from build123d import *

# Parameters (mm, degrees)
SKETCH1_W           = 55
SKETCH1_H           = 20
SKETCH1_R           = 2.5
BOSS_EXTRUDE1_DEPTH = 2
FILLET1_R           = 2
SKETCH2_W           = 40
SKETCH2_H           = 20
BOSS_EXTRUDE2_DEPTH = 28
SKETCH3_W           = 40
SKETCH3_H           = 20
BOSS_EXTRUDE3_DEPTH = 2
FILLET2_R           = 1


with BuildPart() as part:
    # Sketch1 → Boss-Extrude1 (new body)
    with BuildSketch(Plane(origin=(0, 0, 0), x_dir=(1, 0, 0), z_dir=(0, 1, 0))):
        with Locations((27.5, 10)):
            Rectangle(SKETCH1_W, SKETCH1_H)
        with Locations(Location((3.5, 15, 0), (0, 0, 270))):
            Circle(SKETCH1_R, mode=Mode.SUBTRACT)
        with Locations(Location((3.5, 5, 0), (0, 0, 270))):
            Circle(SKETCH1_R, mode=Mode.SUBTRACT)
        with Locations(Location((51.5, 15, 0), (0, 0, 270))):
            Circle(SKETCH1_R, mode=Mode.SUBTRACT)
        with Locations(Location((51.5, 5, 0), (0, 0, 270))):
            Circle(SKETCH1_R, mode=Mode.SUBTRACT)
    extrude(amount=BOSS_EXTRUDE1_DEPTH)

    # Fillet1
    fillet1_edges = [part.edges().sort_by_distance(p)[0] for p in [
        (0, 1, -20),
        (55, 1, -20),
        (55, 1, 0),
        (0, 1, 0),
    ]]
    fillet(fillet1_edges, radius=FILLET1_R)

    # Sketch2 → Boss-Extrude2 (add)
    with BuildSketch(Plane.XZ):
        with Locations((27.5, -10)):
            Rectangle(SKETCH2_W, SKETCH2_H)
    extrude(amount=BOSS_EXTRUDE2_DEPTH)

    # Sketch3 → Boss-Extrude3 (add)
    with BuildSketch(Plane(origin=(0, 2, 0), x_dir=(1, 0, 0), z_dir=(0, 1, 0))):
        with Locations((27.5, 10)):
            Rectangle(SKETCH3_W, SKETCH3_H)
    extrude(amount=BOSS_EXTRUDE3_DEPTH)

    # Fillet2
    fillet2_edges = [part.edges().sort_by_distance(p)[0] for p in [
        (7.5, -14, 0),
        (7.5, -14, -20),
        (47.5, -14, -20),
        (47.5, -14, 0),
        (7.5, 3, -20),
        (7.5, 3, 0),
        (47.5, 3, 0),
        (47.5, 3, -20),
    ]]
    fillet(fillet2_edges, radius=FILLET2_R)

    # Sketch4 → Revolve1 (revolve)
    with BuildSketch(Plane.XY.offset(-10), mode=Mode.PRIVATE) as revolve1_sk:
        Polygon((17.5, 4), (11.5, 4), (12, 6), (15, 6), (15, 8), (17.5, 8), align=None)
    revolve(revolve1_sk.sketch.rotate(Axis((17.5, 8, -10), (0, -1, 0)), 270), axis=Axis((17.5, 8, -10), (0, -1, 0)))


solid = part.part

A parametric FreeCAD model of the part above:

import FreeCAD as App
import Part
import Sketcher
Q = App.Units.Quantity


def edges_at(feature, points):
    """Names of the edges that pass closest to the given points."""
    edges = feature.Shape.Edges
    near = lambda p: min(range(len(edges)), key=lambda i: edges[i].distToShape(Part.Vertex(*p))[0])
    return sorted({f"Edge{near(p) + 1}" for p in points})

doc = App.newDocument("Part")
body = doc.addObject("PartDesign::Body", "Body")

sketch1 = body.newObject("Sketcher::SketchObject", "Sketch")
sketch1.AttachmentSupport = (doc.getObject("XZ_Plane"), [""])
sketch1.MapMode = "FlatFace"
sketch1.addGeometry(Part.LineSegment(App.Vector(0, -20, 0), App.Vector(0, 0, 0)), False)
sketch1.addGeometry(Part.LineSegment(App.Vector(0, 0, 0), App.Vector(55, 0, 0)), False)
sketch1.addGeometry(Part.LineSegment(App.Vector(55, 0, 0), App.Vector(55, -20, 0)), False)
sketch1.addGeometry(Part.LineSegment(App.Vector(55, -20, 0), App.Vector(0, -20, 0)), False)
sketch1.addGeometry(Part.Circle(App.Vector(3.5, -5, 0), App.Vector(0, 0, 1), 2.5), False)
sketch1.addGeometry(Part.Circle(App.Vector(51.5, -5, 0), App.Vector(0, 0, 1), 2.5), False)
sketch1.addGeometry(Part.Circle(App.Vector(3.5, -15, 0), App.Vector(0, 0, 1), 2.5), False)
sketch1.addGeometry(Part.Circle(App.Vector(51.5, -15, 0), App.Vector(0, 0, 1), 2.5), False)
sketch1.addConstraint(Sketcher.Constraint("Coincident", 0, 2, 1, 1))
sketch1.addConstraint(Sketcher.Constraint("Coincident", 1, 2, 2, 1))
sketch1.addConstraint(Sketcher.Constraint("Coincident", 2, 2, 3, 1))
sketch1.addConstraint(Sketcher.Constraint("Coincident", 3, 2, 0, 1))
sketch1.addConstraint(Sketcher.Constraint("Vertical", 0))
sketch1.addConstraint(Sketcher.Constraint("Horizontal", 1))
sketch1.addConstraint(Sketcher.Constraint("Vertical", 2))
sketch1.addConstraint(Sketcher.Constraint("Horizontal", 3))
sketch1.addConstraint(Sketcher.Constraint("Coincident", 0, 2, -1, 1))
sketch1.addConstraint(Sketcher.Constraint("Equal", 4, 5))
sketch1.addConstraint(Sketcher.Constraint("Equal", 5, 6))
sketch1.addConstraint(Sketcher.Constraint("Equal", 6, 7))
sketch1.addConstraint(Sketcher.Constraint("Horizontal", 4, 3, 5, 3))
sketch1.addConstraint(Sketcher.Constraint("Horizontal", 6, 3, 7, 3))
sketch1.addConstraint(Sketcher.Constraint("Vertical", 4, 3, 6, 3))
sketch1.addConstraint(Sketcher.Constraint("Vertical", 5, 3, 7, 3))
sketch1.addConstraint(Sketcher.Constraint("Diameter", 4, Q("5 mm")))
sketch1.addConstraint(Sketcher.Constraint("DistanceX", 1, 1, 1, 2, Q("55 mm")))
sketch1.addConstraint(Sketcher.Constraint("DistanceY", 0, 1, 0, 2, Q("20 mm")))
sketch1.addConstraint(Sketcher.Constraint("DistanceY", 4, 3, -1, 1, Q("5 mm")))
sketch1.addConstraint(Sketcher.Constraint("DistanceY", 6, 3, -1, 1, Q("15 mm")))
sketch1.addConstraint(Sketcher.Constraint("DistanceX", 4, 3, 5, 3, Q("48 mm")))
sketch1.addConstraint(Sketcher.Constraint("DistanceX", -1, 1, 4, 3, Q("3.5 mm")))
pad1 = body.newObject("PartDesign::Pad", "Pad")
pad1.Profile = sketch1
pad1.Length = 2
pad1.Reversed = True
doc.recompute()

fillet = body.newObject("PartDesign::Fillet", "Fillet")
fillet.Base = (pad1, edges_at(pad1, [
    (0, 1, -20),
    (55, 1, -20),
    (55, 1, 0),
    (0, 1, 0),
]))
fillet.Radius = 2

sketch2 = body.newObject("Sketcher::SketchObject", "Sketch001")
sketch2.AttachmentSupport = (doc.getObject("XZ_Plane"), [""])
sketch2.MapMode = "FlatFace"
sketch2.addGeometry(Part.LineSegment(App.Vector(8, 0, 0), App.Vector(8, -20, 0)), False)
sketch2.addGeometry(Part.LineSegment(App.Vector(8, -20, 0), App.Vector(48, -20, 0)), False)
sketch2.addGeometry(Part.LineSegment(App.Vector(48, -20, 0), App.Vector(48, 0, 0)), False)
sketch2.addGeometry(Part.LineSegment(App.Vector(48, 0, 0), App.Vector(8, 0, 0)), False)
sketch2.addConstraint(Sketcher.Constraint("Coincident", 0, 2, 1, 1))
sketch2.addConstraint(Sketcher.Constraint("Coincident", 1, 2, 2, 1))
sketch2.addConstraint(Sketcher.Constraint("Coincident", 2, 2, 3, 1))
sketch2.addConstraint(Sketcher.Constraint("Coincident", 3, 2, 0, 1))
sketch2.addConstraint(Sketcher.Constraint("Vertical", 0))
sketch2.addConstraint(Sketcher.Constraint("Horizontal", 1))
sketch2.addConstraint(Sketcher.Constraint("Vertical", 2))
sketch2.addConstraint(Sketcher.Constraint("Horizontal", 3))
sketch2.addConstraint(Sketcher.Constraint("PointOnObject", 2, 2, -1))
sketch2.addConstraint(Sketcher.Constraint("DistanceX", 1, 1, 1, 2, Q("40 mm")))
sketch2.addConstraint(Sketcher.Constraint("DistanceY", 0, 2, 0, 1, Q("20 mm")))
sketch2.addConstraint(Sketcher.Constraint("DistanceX", -1, 1, 0, 2, Q("7.5 mm")))
pad2 = body.newObject("PartDesign::Pad", "Pad001")
pad2.Profile = sketch2
pad2.Length = 28

sketch3 = body.newObject("Sketcher::SketchObject", "Sketch002")
sketch3.AttachmentSupport = (doc.getObject("XZ_Plane"), [""])
sketch3.MapMode = "FlatFace"
sketch3.AttachmentOffset = App.Placement(App.Vector(0, 0, -2), App.Rotation())
sketch3.addGeometry(Part.LineSegment(App.Vector(8, -20, 0), App.Vector(8, 0, 0)), False)
sketch3.addGeometry(Part.LineSegment(App.Vector(8, 0, 0), App.Vector(48, 0, 0)), False)
sketch3.addGeometry(Part.LineSegment(App.Vector(48, 0, 0), App.Vector(48, -20, 0)), False)
sketch3.addGeometry(Part.LineSegment(App.Vector(48, -20, 0), App.Vector(8, -20, 0)), False)
sketch3.addConstraint(Sketcher.Constraint("Coincident", 0, 2, 1, 1))
sketch3.addConstraint(Sketcher.Constraint("Coincident", 1, 2, 2, 1))
sketch3.addConstraint(Sketcher.Constraint("Coincident", 2, 2, 3, 1))
sketch3.addConstraint(Sketcher.Constraint("Coincident", 3, 2, 0, 1))
sketch3.addConstraint(Sketcher.Constraint("Vertical", 0))
sketch3.addConstraint(Sketcher.Constraint("Horizontal", 1))
sketch3.addConstraint(Sketcher.Constraint("Vertical", 2))
sketch3.addConstraint(Sketcher.Constraint("Horizontal", 3))
sketch3.addConstraint(Sketcher.Constraint("PointOnObject", 0, 2, -1))
sketch3.addConstraint(Sketcher.Constraint("DistanceX", 1, 1, 1, 2, Q("40 mm")))
sketch3.addConstraint(Sketcher.Constraint("DistanceY", 0, 1, 0, 2, Q("20 mm")))
sketch3.addConstraint(Sketcher.Constraint("DistanceX", -1, 1, 0, 2, Q("7.5 mm")))
pad3 = body.newObject("PartDesign::Pad", "Pad002")
pad3.Profile = sketch3
pad3.Length = 2
pad3.Reversed = True
doc.recompute()

fillet2 = body.newObject("PartDesign::Fillet", "Fillet001")
fillet2.Base = (pad3, edges_at(pad3, [
    (7.5, -14, 0),
    (7.5, -14, -20),
    (47.5, -14, -20),
    (47.5, -14, 0),
    (7.5, 3, -20),
    (7.5, 3, 0),
    (47.5, 3, 0),
    (47.5, 3, -20),
]))
fillet2.Radius = 1

sketch4 = body.newObject("Sketcher::SketchObject", "Sketch003")
sketch4.AttachmentSupport = (doc.getObject("XY_Plane"), [""])
sketch4.MapMode = "FlatFace"
sketch4.AttachmentOffset = App.Placement(App.Vector(0, 0, -10), App.Rotation())
sketch4.addGeometry(Part.LineSegment(App.Vector(11.5, 4, 0), App.Vector(17.5, 4, 0)), False)
sketch4.addGeometry(Part.LineSegment(App.Vector(17.5, 4, 0), App.Vector(17.5, 8, 0)), False)
sketch4.addGeometry(Part.LineSegment(App.Vector(17.5, 8, 0), App.Vector(15, 8, 0)), False)
sketch4.addGeometry(Part.LineSegment(App.Vector(15, 8, 0), App.Vector(15, 6, 0)), False)
sketch4.addGeometry(Part.LineSegment(App.Vector(15, 6, 0), App.Vector(12, 6, 0)), False)
sketch4.addGeometry(Part.LineSegment(App.Vector(12, 6, 0), App.Vector(11.5, 4, 0)), False)
sketch4.addGeometry(Part.LineSegment(App.Vector(17.5, 8, 0), App.Vector(17.5, 4, 0)), True)
sketch4.addConstraint(Sketcher.Constraint("Coincident", 0, 2, 1, 1))
sketch4.addConstraint(Sketcher.Constraint("Coincident", 1, 2, 2, 1))
sketch4.addConstraint(Sketcher.Constraint("Coincident", 2, 2, 3, 1))
sketch4.addConstraint(Sketcher.Constraint("Coincident", 3, 2, 4, 1))
sketch4.addConstraint(Sketcher.Constraint("Coincident", 4, 2, 5, 1))
sketch4.addConstraint(Sketcher.Constraint("Coincident", 5, 2, 0, 1))
sketch4.addConstraint(Sketcher.Constraint("Horizontal", 0))
sketch4.addConstraint(Sketcher.Constraint("Vertical", 1))
sketch4.addConstraint(Sketcher.Constraint("Horizontal", 2))
sketch4.addConstraint(Sketcher.Constraint("Vertical", 3))
sketch4.addConstraint(Sketcher.Constraint("Horizontal", 4))
sketch4.addConstraint(Sketcher.Constraint("Vertical", 6))
sketch4.addConstraint(Sketcher.Constraint("Coincident", 6, 1, 1, 2))
sketch4.addConstraint(Sketcher.Constraint("Horizontal", 5, 2, 6, 2))
sketch4.addConstraint(Sketcher.Constraint("DistanceX", 0, 1, 0, 2, Q("6 mm")))
sketch4.addConstraint(Sketcher.Constraint("DistanceX", 4, 2, 4, 1, Q("3 mm")))
sketch4.addConstraint(Sketcher.Constraint("DistanceY", 1, 1, 1, 2, Q("4 mm")))
sketch4.addConstraint(Sketcher.Constraint("DistanceY", 3, 2, 3, 1, Q("2 mm")))
sketch4.addConstraint(Sketcher.Constraint("DistanceX", 2, 2, 2, 1, Q("2.5 mm")))
sketch4.addConstraint(Sketcher.Constraint("DistanceY", -1, 1, 0, 2, Q("4 mm")))
sketch4.addConstraint(Sketcher.Constraint("DistanceX", -1, 1, 2, 2, Q("15 mm")))
revolution = body.newObject("PartDesign::Revolution", "Revolution")
revolution.Profile = sketch4
revolution.ReferenceAxis = (sketch4, ["Axis0"])
revolution.Angle = 360

doc.recompute()
